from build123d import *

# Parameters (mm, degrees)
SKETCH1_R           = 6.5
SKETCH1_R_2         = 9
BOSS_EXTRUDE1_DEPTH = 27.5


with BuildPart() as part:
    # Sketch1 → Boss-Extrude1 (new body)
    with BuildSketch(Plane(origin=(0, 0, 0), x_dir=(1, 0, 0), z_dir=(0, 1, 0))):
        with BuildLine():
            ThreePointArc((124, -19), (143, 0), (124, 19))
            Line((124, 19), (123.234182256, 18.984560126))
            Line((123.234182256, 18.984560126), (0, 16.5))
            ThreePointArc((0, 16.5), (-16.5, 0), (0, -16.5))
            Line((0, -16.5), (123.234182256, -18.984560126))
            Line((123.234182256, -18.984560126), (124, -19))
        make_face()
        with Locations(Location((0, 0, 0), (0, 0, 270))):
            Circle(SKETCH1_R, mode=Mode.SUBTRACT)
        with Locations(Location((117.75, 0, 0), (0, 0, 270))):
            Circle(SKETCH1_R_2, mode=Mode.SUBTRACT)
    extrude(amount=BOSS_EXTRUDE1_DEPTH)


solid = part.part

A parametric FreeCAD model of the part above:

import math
import FreeCAD as App
import Part
import Sketcher

V = App.Vector

doc = App.newDocument("Part")
body = doc.addObject("PartDesign::Body", "Body")

# Sketch on XZ plane
sketch1 = body.newObject("Sketcher::SketchObject", "Sketch")
sketch1.AttachmentSupport = (doc.getObject("XZ_Plane"), [""])
sketch1.MapMode = "FlatFace"
sketch1.addGeometry(Part.ArcOfCircle(Part.Circle(V(124, 0, 0), V(0, 0, 1), 19), math.radians(-90), math.radians(90)), False)
sketch1.addGeometry(Part.LineSegment(V(124, -19, 0), V(123.234182, -18.98456, 0)), False)
sketch1.addGeometry(Part.LineSegment(V(123.234182, -18.98456, 0), V(0, -16.5, 0)), False)
sketch1.addGeometry(Part.ArcOfCircle(Part.Circle(V(0, 0, 0), V(0, 0, 1), 16.5), math.radians(90), math.radians(270)), False)
sketch1.addGeometry(Part.LineSegment(V(0, 16.5, 0), V(123.234182, 18.98456, 0)), False)
sketch1.addGeometry(Part.LineSegment(V(123.234182, 18.98456, 0), V(124, 19, 0)), False)
sketch1.addGeometry(Part.Circle(V(0, 0, 0), V(0, 0, 1), 6.5), False)
sketch1.addGeometry(Part.Circle(V(117.75, 0, 0), V(0, 0, 1), 9), False)
sketch1.addConstraint(Sketcher.Constraint("Coincident", 0, 1, 1, 1))
sketch1.addConstraint(Sketcher.Constraint("Coincident", 1, 2, 2, 1))
sketch1.addConstraint(Sketcher.Constraint("Coincident", 2, 2, 3, 2))
sketch1.addConstraint(Sketcher.Constraint("Coincident", 3, 1, 4, 1))
sketch1.addConstraint(Sketcher.Constraint("Coincident", 4, 2, 5, 1))
sketch1.addConstraint(Sketcher.Constraint("Coincident", 5, 2, 0, 2))
sketch1.addConstraint(Sketcher.Constraint("Coincident", 3, 3, -1, 1))
sketch1.addConstraint(Sketcher.Constraint("Coincident", 6, 3, -1, 1))
sketch1.addConstraint(Sketcher.Constraint("Symmetric", 1, 2, 4, 2, -1))
sketch1.addConstraint(Sketcher.Constraint("Symmetric", 0, 1, 5, 2, -1))
sketch1.addConstraint(Sketcher.Constraint("PointOnObject", 7, 3, -1))
sketch1.addConstraint(Sketcher.Constraint("PointOnObject", 2, 2, -2))
sketch1.addConstraint(Sketcher.Constraint("PointOnObject", 3, 1, -2))
sketch1.addConstraint(Sketcher.Constraint("Parallel", 1, 2))
sketch1.addConstraint(Sketcher.Constraint("Diameter", 6, 13.0))
sketch1.addConstraint(Sketcher.Constraint("Diameter", 7, 18.0))
sketch1.addConstraint(Sketcher.Constraint("Radius", 0, 19.0))
sketch1.addConstraint(Sketcher.Constraint("Radius", 3, 16.5))
sketch1.addConstraint(Sketcher.Constraint("DistanceX", -1, 1, 0, 3, 124.0))
sketch1.addConstraint(Sketcher.Constraint("DistanceX", -1, 1, 0, 1, 124.0))
sketch1.addConstraint(Sketcher.Constraint("DistanceX", -1, 1, 7, 3, 117.75))
sketch1.addConstraint(Sketcher.Constraint("DistanceY", 1, 2, -1, 1, 18.98456))
pad1 = body.newObject("PartDesign::Pad", "Pad")
pad1.Profile = sketch1
pad1.Length = 27.5
pad1.Reversed = True

doc.recompute()
